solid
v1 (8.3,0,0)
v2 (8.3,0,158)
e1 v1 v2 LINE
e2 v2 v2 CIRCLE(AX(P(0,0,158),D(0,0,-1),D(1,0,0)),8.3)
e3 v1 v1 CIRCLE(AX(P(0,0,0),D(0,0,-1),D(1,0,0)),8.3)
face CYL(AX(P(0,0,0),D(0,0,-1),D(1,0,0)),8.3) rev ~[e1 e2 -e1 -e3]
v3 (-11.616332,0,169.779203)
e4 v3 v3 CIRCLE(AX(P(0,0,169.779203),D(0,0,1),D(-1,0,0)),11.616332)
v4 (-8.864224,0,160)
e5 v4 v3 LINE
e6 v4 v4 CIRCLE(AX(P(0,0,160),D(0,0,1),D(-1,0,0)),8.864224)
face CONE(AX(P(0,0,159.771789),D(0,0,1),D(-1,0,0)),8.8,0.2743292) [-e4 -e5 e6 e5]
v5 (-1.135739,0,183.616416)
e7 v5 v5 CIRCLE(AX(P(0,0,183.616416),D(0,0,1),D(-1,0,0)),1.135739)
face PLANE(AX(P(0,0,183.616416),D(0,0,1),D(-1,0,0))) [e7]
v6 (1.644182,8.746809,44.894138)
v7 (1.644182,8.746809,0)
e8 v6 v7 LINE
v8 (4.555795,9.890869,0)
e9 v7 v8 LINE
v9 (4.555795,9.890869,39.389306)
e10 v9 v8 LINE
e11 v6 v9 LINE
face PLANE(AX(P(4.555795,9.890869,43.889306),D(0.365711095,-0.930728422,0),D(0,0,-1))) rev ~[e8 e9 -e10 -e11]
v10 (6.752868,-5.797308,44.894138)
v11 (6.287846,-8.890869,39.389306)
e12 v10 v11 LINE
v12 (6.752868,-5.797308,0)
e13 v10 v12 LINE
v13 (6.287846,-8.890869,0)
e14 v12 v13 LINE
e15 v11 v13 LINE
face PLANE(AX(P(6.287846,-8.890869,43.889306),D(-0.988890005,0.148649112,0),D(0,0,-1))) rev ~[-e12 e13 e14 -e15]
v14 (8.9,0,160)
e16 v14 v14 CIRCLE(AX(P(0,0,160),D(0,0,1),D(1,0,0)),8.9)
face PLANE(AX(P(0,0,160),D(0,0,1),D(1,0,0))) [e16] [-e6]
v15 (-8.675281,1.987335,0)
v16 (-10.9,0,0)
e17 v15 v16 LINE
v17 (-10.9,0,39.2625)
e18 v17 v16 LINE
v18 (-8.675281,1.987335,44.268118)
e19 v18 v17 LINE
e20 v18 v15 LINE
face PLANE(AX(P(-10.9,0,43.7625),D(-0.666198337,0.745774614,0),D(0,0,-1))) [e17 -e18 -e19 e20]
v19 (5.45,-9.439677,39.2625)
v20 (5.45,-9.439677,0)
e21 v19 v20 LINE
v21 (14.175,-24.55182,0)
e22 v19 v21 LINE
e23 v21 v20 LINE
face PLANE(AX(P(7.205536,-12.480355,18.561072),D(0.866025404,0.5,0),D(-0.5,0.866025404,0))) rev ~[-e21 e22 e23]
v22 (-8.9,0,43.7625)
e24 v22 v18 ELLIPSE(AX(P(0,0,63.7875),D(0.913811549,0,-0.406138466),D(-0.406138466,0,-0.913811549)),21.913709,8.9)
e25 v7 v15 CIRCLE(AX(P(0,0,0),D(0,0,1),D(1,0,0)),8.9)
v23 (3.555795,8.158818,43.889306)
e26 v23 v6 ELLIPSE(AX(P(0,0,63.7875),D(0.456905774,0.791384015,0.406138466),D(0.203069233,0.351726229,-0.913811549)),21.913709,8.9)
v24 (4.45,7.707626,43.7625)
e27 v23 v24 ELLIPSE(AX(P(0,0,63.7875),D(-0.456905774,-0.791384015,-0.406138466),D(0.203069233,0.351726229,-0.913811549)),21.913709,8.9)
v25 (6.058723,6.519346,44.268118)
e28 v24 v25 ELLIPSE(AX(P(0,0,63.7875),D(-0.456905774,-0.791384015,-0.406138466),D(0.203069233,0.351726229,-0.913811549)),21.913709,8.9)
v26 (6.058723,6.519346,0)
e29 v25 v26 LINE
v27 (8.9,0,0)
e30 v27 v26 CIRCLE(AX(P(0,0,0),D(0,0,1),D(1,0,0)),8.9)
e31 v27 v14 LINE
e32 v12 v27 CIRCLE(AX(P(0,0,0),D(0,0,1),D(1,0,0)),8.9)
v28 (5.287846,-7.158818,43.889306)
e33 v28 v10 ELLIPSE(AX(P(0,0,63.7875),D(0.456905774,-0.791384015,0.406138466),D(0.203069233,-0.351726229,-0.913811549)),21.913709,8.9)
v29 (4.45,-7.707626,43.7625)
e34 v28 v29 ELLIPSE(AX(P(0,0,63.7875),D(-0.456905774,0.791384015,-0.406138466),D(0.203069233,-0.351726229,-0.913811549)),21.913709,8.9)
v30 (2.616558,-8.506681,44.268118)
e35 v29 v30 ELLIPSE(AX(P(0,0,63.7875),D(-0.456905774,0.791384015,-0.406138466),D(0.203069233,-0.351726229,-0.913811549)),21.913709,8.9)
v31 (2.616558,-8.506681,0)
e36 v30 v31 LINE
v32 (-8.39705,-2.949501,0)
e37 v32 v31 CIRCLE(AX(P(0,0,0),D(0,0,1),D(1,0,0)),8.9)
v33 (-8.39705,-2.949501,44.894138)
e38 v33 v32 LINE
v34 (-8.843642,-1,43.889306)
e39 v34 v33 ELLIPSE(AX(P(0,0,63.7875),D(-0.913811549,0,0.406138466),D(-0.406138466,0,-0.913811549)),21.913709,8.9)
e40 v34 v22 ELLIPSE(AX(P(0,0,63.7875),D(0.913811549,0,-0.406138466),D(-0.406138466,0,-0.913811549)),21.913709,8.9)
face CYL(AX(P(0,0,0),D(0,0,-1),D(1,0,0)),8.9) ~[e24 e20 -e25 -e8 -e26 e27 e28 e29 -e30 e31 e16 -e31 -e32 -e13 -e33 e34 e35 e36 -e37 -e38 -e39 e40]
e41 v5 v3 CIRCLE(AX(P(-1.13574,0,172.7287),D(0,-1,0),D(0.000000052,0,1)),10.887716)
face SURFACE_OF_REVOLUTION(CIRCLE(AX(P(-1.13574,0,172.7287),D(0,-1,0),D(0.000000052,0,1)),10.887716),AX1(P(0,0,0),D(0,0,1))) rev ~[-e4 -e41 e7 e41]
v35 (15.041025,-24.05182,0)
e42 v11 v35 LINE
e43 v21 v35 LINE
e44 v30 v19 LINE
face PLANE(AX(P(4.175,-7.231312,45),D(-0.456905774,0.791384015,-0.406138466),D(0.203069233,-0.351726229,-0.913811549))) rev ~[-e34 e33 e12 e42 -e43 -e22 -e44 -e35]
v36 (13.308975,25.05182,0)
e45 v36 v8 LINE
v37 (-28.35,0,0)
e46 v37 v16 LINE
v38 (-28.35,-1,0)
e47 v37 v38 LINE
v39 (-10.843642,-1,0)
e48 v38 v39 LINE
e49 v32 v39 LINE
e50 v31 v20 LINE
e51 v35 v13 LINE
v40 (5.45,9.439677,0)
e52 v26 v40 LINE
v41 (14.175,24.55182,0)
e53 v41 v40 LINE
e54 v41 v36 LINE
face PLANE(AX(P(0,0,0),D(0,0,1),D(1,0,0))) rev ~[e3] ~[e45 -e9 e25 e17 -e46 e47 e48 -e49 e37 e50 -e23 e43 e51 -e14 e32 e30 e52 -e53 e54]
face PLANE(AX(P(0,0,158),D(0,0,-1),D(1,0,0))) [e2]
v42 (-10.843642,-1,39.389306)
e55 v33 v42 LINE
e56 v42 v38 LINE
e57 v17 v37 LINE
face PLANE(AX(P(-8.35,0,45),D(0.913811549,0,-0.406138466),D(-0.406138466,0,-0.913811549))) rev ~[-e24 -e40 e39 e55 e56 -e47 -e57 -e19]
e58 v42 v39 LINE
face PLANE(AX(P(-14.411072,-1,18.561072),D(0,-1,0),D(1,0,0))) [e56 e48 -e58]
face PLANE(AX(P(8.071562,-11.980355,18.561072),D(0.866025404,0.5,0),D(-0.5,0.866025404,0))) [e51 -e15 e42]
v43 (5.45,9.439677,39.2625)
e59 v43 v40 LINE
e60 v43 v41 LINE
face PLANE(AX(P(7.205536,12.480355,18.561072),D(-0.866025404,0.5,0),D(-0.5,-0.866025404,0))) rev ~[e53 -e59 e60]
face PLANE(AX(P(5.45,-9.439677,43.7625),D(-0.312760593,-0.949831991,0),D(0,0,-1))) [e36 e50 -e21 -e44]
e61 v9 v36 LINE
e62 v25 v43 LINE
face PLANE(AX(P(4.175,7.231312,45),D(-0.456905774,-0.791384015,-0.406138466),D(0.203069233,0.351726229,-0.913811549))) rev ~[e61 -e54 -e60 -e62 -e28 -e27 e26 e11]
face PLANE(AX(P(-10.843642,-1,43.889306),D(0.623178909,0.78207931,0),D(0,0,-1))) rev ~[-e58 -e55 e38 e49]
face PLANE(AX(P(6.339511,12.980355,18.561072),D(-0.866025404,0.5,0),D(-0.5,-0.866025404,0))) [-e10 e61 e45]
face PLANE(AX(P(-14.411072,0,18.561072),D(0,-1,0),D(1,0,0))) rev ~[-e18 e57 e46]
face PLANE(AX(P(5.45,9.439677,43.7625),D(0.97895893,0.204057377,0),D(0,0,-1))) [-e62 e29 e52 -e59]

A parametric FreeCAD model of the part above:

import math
import FreeCAD as App
import Part
import Sketcher

V = App.Vector
Q = App.Units.Quantity


def edges_at(feature, points):
    """Names of the edges that pass closest to the given points."""
    edges = feature.Shape.Edges
    near = lambda p: min(range(len(edges)), key=lambda i: edges[i].distToShape(Part.Vertex(*p))[0])
    return sorted({f"Edge{near(p) + 1}" for p in points})


def add_polygon(sketch, points):
    """Adds a closed chain of lines whose ends are joined by coincident constraints."""
    first, n = sketch.GeometryCount, len(points)
    for a, b in zip(points, points[1:] + points[:1]):
        sketch.addGeometry(Part.LineSegment(App.Vector(*a, 0), App.Vector(*b, 0)), False)
    for i in range(n):
        sketch.addConstraint(Sketcher.Constraint("Coincident", first + i, 2, first + (i + 1) % n, 1))

doc = App.newDocument("Part")
body = doc.addObject("PartDesign::Body", "Body")

sketch1 = doc.addObject("Sketcher::SketchObject", "Sketch")
body.addObject(sketch1)
sketch1.AttachmentSupport = (doc.XY_Plane, [""])
sketch1.MapMode = "FlatFace"
sketch1.addGeometry(Part.Circle(V(0, 0, 0), V(0, 0, 1), 9), False)
sketch1.addConstraint([
    Sketcher.Constraint("Coincident", 0, 3, -1, 1),
    Sketcher.Constraint("Diameter", 0, Q("17.8 mm")),
])
pad1 = doc.addObject("PartDesign::Pad", "Pad")
body.addObject(pad1)
pad1.Profile = sketch1
pad1.Length = 160

sketch2 = doc.addObject("Sketcher::SketchObject", "Sketch001")
body.addObject(sketch2)
sketch2.AttachmentSupport = (doc.XY_Plane, [""])
sketch2.MapMode = "FlatFace"
sketch2.addGeometry(Part.Circle(V(0, 0, 0), V(0, 0, 1), 8), False)
sketch2.addConstraint([
    Sketcher.Constraint("Coincident", 0, 3, -1, 1),
    Sketcher.Constraint("Diameter", 0, Q("16.6 mm")),
])
pocket1 = doc.addObject("PartDesign::Pocket", "Pocket")
body.addObject(pocket1)
pocket1.Profile = sketch2
pocket1.Length = 158
pocket1.Reversed = True

sketch3 = doc.addObject("Sketcher::SketchObject", "Sketch002")
body.addObject(sketch3)
sketch3.AttachmentSupport = (doc.XZ_Plane, [""])
sketch3.MapMode = "FlatFace"
add_polygon(sketch3, [(-8, 45), (-28, 0), (-8, 0)])
sketch3.addConstraint([
    Sketcher.Constraint("Horizontal", 1),
    Sketcher.Constraint("Vertical", 2),
    Sketcher.Constraint("PointOnObject", 0, 2, -1),
    Sketcher.Constraint("DistanceX", 1, 1, 1, 2, Q("20 mm")),
    Sketcher.Constraint("DistanceY", 2, 1, 2, 2, Q("45 mm")),
    Sketcher.Constraint("DistanceX", 0, 2, -1, 1, Q("28.35 mm")),
])
pad2 = doc.addObject("PartDesign::Pad", "Pad001")
body.addObject(pad2)
pad2.Profile = sketch3
pad2.Length = 1
doc.recompute()

polarpattern = doc.addObject("PartDesign::PolarPattern", "PolarPattern")
body.addObject(polarpattern)
polarpattern.Originals = [pad2]
polarpattern.Axis = (doc.Z_Axis, [""])
polarpattern.Angle = 360
polarpattern.Occurrences = 3
body.Tip = polarpattern

sketch4 = doc.addObject("Sketcher::SketchObject", "Sketch003")
body.addObject(sketch4)
sketch4.AttachmentSupport = (doc.XZ_Plane, [""])
sketch4.MapMode = "FlatFace"
sketch4.addGeometry([
    Part.LineSegment(V(0, 183.6, 0), V(-1.1, 183.6, 0)),
    Part.ArcOfCircle(Part.Circle(V(-1.1, 172.7, 0), V(0, 0, 1), 10.9), math.radians(90), math.radians(196)),
    Part.LineSegment(V(-11.6, 169.8, 0), V(-8.8, 159.8, 0)),
    Part.LineSegment(V(-8.8, 159.8, 0), V(0, 159.8, 0)),
    Part.LineSegment(V(0, 159.8, 0), V(0, 183.6, 0)),
], False)
sketch4.addConstraint([
    Sketcher.Constraint("Tangent", 0, 2, 1, 1),
    Sketcher.Constraint("Tangent", 1, 2, 2, 1),
    Sketcher.Constraint("Coincident", 2, 2, 3, 1),
    Sketcher.Constraint("Coincident", 3, 2, 4, 1),
    Sketcher.Constraint("Coincident", 4, 2, 0, 1),
    Sketcher.Constraint("Horizontal", 0),
    Sketcher.Constraint("Horizontal", 3),
    Sketcher.Constraint("Vertical", 4),
    Sketcher.Constraint("PointOnObject", 3, 2, -2),
    Sketcher.Constraint("DistanceX", 3, 1, 3, 2, Q("8.8 mm")),
    Sketcher.Constraint("Radius", 1, Q("10.887716 mm")),
    Sketcher.Constraint("DistanceX", 0, 2, 0, 1, Q("1.135739 mm")),
    Sketcher.Constraint("DistanceY", -1, 1, 1, 3, Q("172.7287 mm")),
    Sketcher.Constraint("DistanceY", 4, 1, 4, 2, Q("23.844627 mm")),
])
revolution = doc.addObject("PartDesign::Revolution", "Revolution")
body.addObject(revolution)
revolution.Profile = sketch4
revolution.ReferenceAxis = (sketch4, ["V_Axis"])
revolution.Angle = 360
doc.recompute()

chamfer = doc.addObject("PartDesign::Chamfer", "Chamfer")
body.addObject(chamfer)
chamfer.Base = (revolution, edges_at(revolution, [
    (4.45, 7.708, 21.881),
    (5.288, -7.159, 21.945),
    (4.45, -7.708, 21.881),
    (-8.844, -1, 21.945),
    (-8.9, 0, 21.881),
    (3.556, 8.159, 21.945),
]))
chamfer.Size = 2

doc.recompute()
